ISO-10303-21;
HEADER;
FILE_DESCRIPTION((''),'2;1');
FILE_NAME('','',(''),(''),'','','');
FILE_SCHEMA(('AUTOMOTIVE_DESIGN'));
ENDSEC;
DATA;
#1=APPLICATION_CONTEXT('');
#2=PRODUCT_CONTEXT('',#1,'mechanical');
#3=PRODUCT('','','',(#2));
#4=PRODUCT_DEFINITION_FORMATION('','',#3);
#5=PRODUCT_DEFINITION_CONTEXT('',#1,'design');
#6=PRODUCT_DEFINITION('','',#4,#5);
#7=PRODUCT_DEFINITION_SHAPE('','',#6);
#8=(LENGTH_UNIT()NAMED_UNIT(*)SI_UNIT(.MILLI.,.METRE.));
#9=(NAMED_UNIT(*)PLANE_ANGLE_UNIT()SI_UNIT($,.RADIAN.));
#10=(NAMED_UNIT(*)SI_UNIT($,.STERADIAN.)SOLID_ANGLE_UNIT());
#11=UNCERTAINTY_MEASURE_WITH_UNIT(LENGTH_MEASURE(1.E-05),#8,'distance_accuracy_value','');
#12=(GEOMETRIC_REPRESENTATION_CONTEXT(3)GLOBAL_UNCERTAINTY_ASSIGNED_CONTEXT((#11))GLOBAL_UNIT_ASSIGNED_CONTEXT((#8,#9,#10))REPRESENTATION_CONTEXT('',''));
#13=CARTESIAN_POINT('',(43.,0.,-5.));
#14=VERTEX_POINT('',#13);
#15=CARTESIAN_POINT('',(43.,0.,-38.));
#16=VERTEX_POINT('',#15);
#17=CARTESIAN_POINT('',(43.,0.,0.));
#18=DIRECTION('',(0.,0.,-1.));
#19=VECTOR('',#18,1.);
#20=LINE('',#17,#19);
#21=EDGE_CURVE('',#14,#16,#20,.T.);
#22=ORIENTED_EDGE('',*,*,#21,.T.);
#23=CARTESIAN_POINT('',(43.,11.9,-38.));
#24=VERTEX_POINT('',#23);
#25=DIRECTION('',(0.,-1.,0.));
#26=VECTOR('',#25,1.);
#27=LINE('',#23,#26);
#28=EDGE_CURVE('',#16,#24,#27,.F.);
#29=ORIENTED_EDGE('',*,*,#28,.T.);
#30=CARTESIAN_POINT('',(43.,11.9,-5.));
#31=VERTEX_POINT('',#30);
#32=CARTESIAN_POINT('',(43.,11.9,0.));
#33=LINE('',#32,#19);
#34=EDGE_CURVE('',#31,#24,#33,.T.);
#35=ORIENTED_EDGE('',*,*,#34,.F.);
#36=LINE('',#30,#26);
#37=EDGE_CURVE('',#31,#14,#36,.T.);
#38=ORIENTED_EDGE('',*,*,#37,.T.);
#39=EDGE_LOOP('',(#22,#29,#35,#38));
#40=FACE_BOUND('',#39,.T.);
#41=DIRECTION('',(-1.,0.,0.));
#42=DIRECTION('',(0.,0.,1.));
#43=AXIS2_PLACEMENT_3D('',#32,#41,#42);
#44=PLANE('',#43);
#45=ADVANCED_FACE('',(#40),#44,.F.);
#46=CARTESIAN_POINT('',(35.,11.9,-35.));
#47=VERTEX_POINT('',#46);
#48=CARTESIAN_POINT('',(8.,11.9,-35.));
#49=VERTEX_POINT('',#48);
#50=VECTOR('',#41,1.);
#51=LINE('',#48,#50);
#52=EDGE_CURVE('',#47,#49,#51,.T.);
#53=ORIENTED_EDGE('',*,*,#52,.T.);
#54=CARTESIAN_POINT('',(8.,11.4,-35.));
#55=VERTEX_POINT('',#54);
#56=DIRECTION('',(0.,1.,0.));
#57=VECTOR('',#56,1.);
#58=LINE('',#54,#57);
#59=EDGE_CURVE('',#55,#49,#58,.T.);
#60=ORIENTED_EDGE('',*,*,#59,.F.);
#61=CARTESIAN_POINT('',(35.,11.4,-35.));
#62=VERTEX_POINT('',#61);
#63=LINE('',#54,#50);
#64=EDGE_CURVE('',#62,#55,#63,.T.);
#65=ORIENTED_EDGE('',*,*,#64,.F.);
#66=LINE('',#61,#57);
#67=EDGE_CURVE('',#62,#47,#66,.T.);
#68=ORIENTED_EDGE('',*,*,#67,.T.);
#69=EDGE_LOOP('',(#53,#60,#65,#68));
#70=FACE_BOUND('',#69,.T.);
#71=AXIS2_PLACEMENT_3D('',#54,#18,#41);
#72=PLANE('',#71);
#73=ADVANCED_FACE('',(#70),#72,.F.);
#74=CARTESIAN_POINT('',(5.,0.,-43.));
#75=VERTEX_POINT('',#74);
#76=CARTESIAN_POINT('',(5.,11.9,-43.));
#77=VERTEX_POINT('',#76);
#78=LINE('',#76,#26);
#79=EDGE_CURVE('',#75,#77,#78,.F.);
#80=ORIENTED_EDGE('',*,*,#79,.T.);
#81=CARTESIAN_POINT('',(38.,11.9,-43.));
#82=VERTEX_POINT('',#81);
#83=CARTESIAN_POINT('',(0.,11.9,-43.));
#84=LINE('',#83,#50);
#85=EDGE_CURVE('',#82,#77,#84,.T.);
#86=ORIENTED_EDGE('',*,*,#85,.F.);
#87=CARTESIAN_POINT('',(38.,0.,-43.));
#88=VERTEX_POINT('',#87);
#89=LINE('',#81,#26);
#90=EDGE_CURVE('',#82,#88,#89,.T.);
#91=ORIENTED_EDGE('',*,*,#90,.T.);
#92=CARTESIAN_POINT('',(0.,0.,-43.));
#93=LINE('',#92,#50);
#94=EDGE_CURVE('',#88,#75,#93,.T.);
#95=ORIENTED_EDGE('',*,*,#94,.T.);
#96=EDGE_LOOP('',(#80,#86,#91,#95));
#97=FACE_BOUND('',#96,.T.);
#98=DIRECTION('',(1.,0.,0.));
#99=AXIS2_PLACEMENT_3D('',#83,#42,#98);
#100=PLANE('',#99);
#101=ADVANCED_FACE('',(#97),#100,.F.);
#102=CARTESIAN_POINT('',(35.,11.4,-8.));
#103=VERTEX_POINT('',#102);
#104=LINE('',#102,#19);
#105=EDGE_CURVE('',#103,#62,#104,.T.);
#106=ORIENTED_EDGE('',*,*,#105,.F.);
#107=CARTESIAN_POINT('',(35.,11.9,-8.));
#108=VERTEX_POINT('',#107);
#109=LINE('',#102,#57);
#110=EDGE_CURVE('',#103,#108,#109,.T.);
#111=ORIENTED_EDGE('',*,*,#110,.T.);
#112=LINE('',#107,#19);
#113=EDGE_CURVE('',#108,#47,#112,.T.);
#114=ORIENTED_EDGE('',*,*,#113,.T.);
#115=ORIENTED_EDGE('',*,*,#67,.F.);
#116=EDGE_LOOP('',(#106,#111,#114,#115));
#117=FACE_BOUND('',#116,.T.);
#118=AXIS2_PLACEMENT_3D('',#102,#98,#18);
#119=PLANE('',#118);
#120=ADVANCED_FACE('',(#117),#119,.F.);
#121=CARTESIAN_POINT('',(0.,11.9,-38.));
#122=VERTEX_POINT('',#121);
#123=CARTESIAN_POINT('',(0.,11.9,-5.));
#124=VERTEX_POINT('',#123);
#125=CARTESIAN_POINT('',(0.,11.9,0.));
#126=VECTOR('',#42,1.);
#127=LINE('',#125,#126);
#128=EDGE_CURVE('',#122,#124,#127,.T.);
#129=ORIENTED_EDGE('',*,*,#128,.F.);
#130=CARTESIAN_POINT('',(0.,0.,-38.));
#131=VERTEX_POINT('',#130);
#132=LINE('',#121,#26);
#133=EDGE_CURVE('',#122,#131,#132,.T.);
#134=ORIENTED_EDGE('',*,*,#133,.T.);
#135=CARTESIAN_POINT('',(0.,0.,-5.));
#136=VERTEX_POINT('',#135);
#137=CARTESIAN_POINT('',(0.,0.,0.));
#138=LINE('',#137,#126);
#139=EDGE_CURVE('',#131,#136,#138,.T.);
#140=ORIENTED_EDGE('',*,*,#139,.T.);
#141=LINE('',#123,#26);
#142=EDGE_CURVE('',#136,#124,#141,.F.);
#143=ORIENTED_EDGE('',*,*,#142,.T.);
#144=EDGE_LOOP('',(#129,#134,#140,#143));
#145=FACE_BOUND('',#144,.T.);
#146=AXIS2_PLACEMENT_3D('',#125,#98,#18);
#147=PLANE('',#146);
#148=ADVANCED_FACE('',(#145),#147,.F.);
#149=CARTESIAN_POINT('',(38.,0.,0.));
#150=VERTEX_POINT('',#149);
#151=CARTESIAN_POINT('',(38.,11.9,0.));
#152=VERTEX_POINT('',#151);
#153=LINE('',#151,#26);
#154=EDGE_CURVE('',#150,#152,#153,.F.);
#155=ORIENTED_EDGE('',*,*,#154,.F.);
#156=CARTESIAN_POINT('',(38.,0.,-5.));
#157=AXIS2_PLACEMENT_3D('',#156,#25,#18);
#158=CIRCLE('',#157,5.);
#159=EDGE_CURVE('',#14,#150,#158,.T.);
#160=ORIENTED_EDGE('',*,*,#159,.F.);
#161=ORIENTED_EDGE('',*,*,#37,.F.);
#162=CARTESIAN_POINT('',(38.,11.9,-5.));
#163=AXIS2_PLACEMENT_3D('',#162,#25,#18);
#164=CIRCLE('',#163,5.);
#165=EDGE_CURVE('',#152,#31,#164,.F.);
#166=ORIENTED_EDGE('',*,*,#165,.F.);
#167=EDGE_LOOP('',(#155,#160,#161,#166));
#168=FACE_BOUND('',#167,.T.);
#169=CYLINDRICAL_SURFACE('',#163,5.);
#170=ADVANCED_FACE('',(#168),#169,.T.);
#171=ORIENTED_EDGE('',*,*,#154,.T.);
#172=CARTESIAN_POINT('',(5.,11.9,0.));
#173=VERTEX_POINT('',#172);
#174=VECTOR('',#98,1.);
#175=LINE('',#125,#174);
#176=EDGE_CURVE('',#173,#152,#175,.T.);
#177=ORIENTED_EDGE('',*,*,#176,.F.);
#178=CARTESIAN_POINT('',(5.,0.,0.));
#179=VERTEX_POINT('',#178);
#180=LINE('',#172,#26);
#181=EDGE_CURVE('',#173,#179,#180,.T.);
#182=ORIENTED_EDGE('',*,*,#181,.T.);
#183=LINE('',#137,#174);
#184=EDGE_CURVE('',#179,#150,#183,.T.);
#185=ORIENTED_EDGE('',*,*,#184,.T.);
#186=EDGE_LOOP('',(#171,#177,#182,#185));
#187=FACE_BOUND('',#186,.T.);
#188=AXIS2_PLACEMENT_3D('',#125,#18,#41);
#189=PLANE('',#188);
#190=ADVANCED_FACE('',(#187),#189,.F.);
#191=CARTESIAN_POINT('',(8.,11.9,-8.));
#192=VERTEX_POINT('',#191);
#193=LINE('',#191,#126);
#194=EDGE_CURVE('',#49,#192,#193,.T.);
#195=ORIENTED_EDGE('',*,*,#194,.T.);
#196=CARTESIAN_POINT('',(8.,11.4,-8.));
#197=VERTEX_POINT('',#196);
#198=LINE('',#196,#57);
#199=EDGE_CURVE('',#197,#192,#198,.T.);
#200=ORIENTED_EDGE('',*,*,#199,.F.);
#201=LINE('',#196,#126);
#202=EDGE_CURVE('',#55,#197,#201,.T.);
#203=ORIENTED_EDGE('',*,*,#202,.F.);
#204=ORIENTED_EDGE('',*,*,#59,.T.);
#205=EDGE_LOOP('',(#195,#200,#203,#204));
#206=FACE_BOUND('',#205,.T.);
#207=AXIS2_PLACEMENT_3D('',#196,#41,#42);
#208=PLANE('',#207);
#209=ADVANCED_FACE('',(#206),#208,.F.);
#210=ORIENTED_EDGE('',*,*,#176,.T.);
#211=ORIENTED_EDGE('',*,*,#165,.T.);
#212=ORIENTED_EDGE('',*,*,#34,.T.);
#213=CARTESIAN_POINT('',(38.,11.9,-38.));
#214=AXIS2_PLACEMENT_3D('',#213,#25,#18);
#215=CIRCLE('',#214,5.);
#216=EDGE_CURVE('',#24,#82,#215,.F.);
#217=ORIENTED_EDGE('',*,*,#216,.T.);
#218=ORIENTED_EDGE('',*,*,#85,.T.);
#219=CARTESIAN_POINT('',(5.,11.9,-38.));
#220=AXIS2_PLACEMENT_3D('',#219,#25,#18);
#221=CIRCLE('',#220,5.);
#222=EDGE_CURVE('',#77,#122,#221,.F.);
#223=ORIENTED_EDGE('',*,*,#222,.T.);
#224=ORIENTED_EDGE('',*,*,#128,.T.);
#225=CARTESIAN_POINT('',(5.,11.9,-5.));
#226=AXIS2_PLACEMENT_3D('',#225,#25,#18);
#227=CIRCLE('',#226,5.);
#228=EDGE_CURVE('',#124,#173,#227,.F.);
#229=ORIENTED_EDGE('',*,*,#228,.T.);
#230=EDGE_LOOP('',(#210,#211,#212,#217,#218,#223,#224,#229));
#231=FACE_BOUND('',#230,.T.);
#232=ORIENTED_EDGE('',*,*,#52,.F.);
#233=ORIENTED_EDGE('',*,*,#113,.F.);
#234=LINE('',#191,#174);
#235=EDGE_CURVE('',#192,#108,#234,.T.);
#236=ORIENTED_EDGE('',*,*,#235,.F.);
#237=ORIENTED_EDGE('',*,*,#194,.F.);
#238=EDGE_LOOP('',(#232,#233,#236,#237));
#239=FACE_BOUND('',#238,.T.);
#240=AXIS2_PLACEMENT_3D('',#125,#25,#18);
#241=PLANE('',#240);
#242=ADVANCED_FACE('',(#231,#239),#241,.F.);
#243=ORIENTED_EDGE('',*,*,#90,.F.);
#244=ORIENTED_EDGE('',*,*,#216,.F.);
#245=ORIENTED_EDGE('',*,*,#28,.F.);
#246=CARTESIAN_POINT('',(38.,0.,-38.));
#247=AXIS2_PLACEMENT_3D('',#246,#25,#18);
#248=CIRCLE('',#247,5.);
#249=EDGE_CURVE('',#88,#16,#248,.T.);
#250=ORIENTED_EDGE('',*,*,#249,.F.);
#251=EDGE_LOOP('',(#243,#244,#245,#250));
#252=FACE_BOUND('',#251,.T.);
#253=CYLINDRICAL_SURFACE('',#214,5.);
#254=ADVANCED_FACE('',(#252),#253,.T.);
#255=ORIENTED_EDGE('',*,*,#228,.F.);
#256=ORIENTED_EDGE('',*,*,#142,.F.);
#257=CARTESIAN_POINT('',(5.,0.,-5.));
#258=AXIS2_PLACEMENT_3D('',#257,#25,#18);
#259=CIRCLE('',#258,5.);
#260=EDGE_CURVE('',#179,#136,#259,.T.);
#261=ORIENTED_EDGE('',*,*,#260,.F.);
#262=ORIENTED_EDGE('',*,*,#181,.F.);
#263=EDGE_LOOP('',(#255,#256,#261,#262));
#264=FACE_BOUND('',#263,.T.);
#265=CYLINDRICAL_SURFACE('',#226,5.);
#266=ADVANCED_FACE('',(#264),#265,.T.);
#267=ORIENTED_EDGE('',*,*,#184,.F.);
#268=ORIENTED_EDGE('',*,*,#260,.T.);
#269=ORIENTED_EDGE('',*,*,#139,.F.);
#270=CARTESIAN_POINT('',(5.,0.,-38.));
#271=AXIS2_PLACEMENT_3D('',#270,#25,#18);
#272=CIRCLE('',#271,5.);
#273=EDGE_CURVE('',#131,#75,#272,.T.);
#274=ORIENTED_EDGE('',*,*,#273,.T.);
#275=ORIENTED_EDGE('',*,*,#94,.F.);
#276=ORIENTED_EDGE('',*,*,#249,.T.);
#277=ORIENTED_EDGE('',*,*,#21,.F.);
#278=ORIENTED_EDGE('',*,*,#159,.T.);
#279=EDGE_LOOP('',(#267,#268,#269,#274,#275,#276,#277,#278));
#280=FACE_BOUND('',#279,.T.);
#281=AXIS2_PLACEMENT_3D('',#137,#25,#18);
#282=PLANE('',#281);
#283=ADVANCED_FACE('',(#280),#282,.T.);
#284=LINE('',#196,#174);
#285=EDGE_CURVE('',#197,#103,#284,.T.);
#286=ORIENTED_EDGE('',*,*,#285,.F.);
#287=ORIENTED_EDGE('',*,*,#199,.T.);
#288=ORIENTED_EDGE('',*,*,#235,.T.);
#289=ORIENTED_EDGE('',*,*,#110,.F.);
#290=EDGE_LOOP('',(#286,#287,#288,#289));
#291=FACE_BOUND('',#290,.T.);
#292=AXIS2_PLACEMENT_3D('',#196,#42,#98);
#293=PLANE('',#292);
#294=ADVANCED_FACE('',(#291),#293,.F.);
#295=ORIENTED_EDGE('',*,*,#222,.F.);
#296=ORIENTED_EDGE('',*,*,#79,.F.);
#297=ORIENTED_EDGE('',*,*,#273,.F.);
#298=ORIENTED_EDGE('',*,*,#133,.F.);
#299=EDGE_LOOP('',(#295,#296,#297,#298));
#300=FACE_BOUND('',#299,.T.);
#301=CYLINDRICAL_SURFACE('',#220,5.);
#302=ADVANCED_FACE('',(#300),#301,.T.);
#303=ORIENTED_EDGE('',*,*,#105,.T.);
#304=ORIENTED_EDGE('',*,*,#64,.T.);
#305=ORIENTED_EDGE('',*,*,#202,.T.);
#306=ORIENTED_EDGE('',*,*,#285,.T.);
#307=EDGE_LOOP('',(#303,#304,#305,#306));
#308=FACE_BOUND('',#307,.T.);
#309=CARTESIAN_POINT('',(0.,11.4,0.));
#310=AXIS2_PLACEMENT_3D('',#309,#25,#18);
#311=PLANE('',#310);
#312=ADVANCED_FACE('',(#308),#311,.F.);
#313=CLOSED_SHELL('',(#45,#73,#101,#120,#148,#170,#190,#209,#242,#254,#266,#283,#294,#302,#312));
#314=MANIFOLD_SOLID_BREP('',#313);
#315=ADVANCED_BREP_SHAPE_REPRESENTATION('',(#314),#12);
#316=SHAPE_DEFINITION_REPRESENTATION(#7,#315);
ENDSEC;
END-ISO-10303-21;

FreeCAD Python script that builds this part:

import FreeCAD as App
import Part
import Sketcher
from FreeCAD import Vector
Q = App.Units.Quantity


def edges_at(feature, points):
    """Names of the edges that pass closest to the given points."""
    edges = feature.Shape.Edges
    near = lambda p: min(range(len(edges)), key=lambda i: edges[i].distToShape(Part.Vertex(*p))[0])
    return sorted({f"Edge{near(p) + 1}" for p in points})


def add_polygon(sketch, points):
    """Adds a closed chain of lines whose ends are joined by coincident constraints."""
    first, n = sketch.GeometryCount, len(points)
    for a, b in zip(points, points[1:] + points[:1]):
        sketch.addGeometry(Part.LineSegment(App.Vector(*a, 0), App.Vector(*b, 0)), False)
    for i in range(n):
        sketch.addConstraint(Sketcher.Constraint("Coincident", first + i, 2, first + (i + 1) % n, 1))

doc = App.newDocument("Part")
body = doc.addObject("PartDesign::Body", "Body")

# Sketch on XZ plane
sketch1 = body.newObject("Sketcher::SketchObject", "Sketch")
sketch1.AttachmentSupport = (doc.getObject("XZ_Plane"), [""])
sketch1.MapMode = "FlatFace"
add_polygon(sketch1, [(0, -43), (0, 0), (43, 0), (43, -43)])  # lines 0-3
sketch1.addConstraint(Sketcher.Constraint("Vertical", 0))
sketch1.addConstraint(Sketcher.Constraint("Horizontal", 1))
sketch1.addConstraint(Sketcher.Constraint("Vertical", 2))
sketch1.addConstraint(Sketcher.Constraint("Horizontal", 3))
sketch1.addConstraint(Sketcher.Constraint("Coincident", 0, 2, -1, 1))
sketch1.addConstraint(Sketcher.Constraint("Equal", 3, 0))
sketch1.addConstraint(Sketcher.Constraint("DistanceX", 1, 1, 1, 2, Q("43 mm")))
pad1 = body.newObject("PartDesign::Pad", "Pad")
pad1.Profile = sketch1
pad1.Length = 11.9
pad1.Reversed = True

# Sketch on XZ plane
sketch2 = body.newObject("Sketcher::SketchObject", "Sketch001")
sketch2.AttachmentSupport = (doc.getObject("XZ_Plane"), [""])
sketch2.MapMode = "FlatFace"
sketch2.AttachmentOffset = App.Placement(Vector(0, 0, -11.9), App.Rotation())
add_polygon(sketch2, [(8, -35), (8, -8), (35, -8), (35, -35)])  # lines 0-3
sketch2.addConstraint(Sketcher.Constraint("Vertical", 0))
sketch2.addConstraint(Sketcher.Constraint("Horizontal", 1))
sketch2.addConstraint(Sketcher.Constraint("Vertical", 2))
sketch2.addConstraint(Sketcher.Constraint("Horizontal", 3))
sketch2.addConstraint(Sketcher.Constraint("Equal", 3, 0))
sketch2.addConstraint(Sketcher.Constraint("DistanceX", 1, 1, 1, 2, Q("27 mm")))
sketch2.addConstraint(Sketcher.Constraint("DistanceX", -1, 1, 0, 2, Q("8 mm")))
sketch2.addConstraint(Sketcher.Constraint("DistanceY", 0, 2, -1, 1, Q("8 mm")))
pocket1 = body.newObject("PartDesign::Pocket", "Pocket")
pocket1.Profile = sketch2
pocket1.Length = 0.5
pocket1.Reversed = True
doc.recompute()

fillet = body.newObject("PartDesign::Fillet", "Fillet")
fillet.Base = (pocket1, edges_at(pocket1, [
    (0, 5.95, -43),
    (43, 5.95, -43),
    (43, 5.95, 0),
    (0, 5.95, 0),
]))
fillet.Radius = 5

doc.recompute()
